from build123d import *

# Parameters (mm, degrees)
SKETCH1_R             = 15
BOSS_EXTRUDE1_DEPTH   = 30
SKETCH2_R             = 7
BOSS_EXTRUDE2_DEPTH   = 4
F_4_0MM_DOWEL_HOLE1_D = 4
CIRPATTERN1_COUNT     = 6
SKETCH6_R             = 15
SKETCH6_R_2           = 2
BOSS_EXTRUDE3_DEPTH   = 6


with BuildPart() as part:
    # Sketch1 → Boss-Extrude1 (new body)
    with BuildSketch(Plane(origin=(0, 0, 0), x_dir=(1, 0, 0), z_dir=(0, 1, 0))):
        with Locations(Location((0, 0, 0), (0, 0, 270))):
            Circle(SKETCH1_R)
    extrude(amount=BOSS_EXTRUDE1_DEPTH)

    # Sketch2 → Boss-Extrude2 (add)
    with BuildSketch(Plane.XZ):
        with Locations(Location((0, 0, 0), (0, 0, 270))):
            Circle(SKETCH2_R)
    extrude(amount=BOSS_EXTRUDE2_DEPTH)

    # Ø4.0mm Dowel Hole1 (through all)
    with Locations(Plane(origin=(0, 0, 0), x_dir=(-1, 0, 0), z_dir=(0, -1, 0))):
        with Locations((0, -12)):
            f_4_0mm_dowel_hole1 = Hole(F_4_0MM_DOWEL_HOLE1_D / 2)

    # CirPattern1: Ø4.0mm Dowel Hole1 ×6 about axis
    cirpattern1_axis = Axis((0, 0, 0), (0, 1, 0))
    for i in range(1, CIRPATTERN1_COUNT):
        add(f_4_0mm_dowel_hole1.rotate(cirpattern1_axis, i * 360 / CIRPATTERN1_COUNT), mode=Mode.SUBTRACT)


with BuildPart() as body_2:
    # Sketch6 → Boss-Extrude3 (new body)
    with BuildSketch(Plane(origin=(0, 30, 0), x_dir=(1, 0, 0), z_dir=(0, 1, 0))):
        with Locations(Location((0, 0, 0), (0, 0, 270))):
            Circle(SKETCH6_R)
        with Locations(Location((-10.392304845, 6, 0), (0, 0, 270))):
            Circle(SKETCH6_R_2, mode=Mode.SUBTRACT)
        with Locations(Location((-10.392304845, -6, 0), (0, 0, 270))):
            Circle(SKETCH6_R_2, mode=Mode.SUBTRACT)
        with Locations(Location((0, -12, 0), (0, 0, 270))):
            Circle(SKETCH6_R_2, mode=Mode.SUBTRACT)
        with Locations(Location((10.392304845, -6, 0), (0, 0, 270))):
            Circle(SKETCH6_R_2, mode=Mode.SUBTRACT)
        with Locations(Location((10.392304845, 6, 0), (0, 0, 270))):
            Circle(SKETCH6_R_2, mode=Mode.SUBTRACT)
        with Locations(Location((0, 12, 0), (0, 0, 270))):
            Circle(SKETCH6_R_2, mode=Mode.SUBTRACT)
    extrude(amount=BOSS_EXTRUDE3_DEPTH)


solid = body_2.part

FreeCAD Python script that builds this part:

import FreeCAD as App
import Part
import Sketcher

V = App.Vector

doc = App.newDocument("Part")
body = doc.addObject("PartDesign::Body", "Body")

sketch1 = body.newObject("Sketcher::SketchObject", "Sketch")
sketch1.AttachmentSupport = (doc.getObject("XZ_Plane"), [""])
sketch1.MapMode = "FlatFace"
sketch1.addGeometry(Part.Circle(V(0, 0, 0), V(0, 0, 1), 15), False)
sketch1.addConstraint([
    Sketcher.Constraint("Coincident", 0, 3, -1, 1),
    Sketcher.Constraint("Diameter", 0, 30.0),
])
pad1 = body.newObject("PartDesign::Pad", "Pad")
pad1.Profile = sketch1
pad1.Length = 30
pad1.Reversed = True

sketch2 = body.newObject("Sketcher::SketchObject", "Sketch001")
sketch2.AttachmentSupport = (doc.getObject("XZ_Plane"), [""])
sketch2.MapMode = "FlatFace"
sketch2.addGeometry(Part.Circle(V(0, 0, 0), V(0, 0, 1), 7), False)
sketch2.addConstraint([
    Sketcher.Constraint("Coincident", 0, 3, -1, 1),
    Sketcher.Constraint("Diameter", 0, 14.0),
])
pad2 = body.newObject("PartDesign::Pad", "Pad001")
pad2.Profile = sketch2
pad2.Length = 4

sketch3 = body.newObject("Sketcher::SketchObject", "Sketch002")
sketch3.AttachmentSupport = (doc.getObject("XZ_Plane"), [""])
sketch3.MapMode = "FlatFace"
sketch3.addGeometry(Part.Circle(V(0, 12, 0), V(0, 0, 1), 2), False)
sketch3.addConstraint([
    Sketcher.Constraint("PointOnObject", 0, 3, -2),
    Sketcher.Constraint("Diameter", 0, 4.0),
    Sketcher.Constraint("DistanceY", -1, 1, 0, 3, 12.0),
])
doc.recompute()
hole = body.newObject("PartDesign::Hole", "Hole")
hole.Profile = sketch3
hole.ThreadType = "None"
hole.Diameter = 4
hole.DepthType = "ThroughAll"
doc.recompute()

polarpattern = body.newObject("PartDesign::PolarPattern", "PolarPattern")
polarpattern.Originals = [hole]
polarpattern.Axis = (doc.getObject("Y_Axis"), [""])
polarpattern.Angle = 360
polarpattern.Occurrences = 6
body.Tip = polarpattern
body2 = doc.addObject("PartDesign::Body", "Body001")

sketch4 = body2.newObject("Sketcher::SketchObject", "Sketch003")
sketch4.AttachmentSupport = (doc.getObject("XZ_Plane001"), [""])
sketch4.MapMode = "FlatFace"
sketch4.AttachmentOffset = App.Placement(V(0, 0, -30), App.Rotation())
sketch4.addGeometry([
    Part.Circle(V(0, 0, 0), V(0, 0, 1), 15),
    Part.Circle(V(-10.392305, -6, 0), V(0, 0, 1), 2),
    Part.Circle(V(0, -12, 0), V(0, 0, 1), 2),
    Part.Circle(V(-10.392305, 6, 0), V(0, 0, 1), 2),
    Part.Circle(V(10.392305, -6, 0), V(0, 0, 1), 2),
    Part.Circle(V(0, 12, 0), V(0, 0, 1), 2),
    Part.Circle(V(10.392305, 6, 0), V(0, 0, 1), 2),
], False)
sketch4.addConstraint([
    Sketcher.Constraint("Coincident", 0, 3, -1, 1),
    Sketcher.Constraint("Equal", 1, 2),
    Sketcher.Constraint("Equal", 2, 3),
    Sketcher.Constraint("Equal", 3, 4),
    Sketcher.Constraint("Equal", 4, 5),
    Sketcher.Constraint("Equal", 5, 6),
    Sketcher.Constraint("Symmetric", 3, 3, 4, 3, -1, 1),
    Sketcher.Constraint("Symmetric", 2, 3, 5, 3, -1, 1),
    Sketcher.Constraint("Symmetric", 1, 3, 6, 3, -1, 1),
    Sketcher.Constraint("Symmetric", 1, 3, 4, 3, -2),
    Sketcher.Constraint("PointOnObject", 2, 3, -2),
    Sketcher.Constraint("Diameter", 0, 30.0),
    Sketcher.Constraint("Diameter", 1, 4.0),
    Sketcher.Constraint("DistanceY", 1, 3, -1, 1, 6.0),
    Sketcher.Constraint("DistanceY", 2, 3, -1, 1, 12.0),
    Sketcher.Constraint("DistanceX", 1, 3, 4, 3, 20.78461),
])
pad3 = body2.newObject("PartDesign::Pad", "Pad002")
pad3.Profile = sketch4
pad3.Length = 6
pad3.Reversed = True
body.Visibility = False

doc.recompute()
